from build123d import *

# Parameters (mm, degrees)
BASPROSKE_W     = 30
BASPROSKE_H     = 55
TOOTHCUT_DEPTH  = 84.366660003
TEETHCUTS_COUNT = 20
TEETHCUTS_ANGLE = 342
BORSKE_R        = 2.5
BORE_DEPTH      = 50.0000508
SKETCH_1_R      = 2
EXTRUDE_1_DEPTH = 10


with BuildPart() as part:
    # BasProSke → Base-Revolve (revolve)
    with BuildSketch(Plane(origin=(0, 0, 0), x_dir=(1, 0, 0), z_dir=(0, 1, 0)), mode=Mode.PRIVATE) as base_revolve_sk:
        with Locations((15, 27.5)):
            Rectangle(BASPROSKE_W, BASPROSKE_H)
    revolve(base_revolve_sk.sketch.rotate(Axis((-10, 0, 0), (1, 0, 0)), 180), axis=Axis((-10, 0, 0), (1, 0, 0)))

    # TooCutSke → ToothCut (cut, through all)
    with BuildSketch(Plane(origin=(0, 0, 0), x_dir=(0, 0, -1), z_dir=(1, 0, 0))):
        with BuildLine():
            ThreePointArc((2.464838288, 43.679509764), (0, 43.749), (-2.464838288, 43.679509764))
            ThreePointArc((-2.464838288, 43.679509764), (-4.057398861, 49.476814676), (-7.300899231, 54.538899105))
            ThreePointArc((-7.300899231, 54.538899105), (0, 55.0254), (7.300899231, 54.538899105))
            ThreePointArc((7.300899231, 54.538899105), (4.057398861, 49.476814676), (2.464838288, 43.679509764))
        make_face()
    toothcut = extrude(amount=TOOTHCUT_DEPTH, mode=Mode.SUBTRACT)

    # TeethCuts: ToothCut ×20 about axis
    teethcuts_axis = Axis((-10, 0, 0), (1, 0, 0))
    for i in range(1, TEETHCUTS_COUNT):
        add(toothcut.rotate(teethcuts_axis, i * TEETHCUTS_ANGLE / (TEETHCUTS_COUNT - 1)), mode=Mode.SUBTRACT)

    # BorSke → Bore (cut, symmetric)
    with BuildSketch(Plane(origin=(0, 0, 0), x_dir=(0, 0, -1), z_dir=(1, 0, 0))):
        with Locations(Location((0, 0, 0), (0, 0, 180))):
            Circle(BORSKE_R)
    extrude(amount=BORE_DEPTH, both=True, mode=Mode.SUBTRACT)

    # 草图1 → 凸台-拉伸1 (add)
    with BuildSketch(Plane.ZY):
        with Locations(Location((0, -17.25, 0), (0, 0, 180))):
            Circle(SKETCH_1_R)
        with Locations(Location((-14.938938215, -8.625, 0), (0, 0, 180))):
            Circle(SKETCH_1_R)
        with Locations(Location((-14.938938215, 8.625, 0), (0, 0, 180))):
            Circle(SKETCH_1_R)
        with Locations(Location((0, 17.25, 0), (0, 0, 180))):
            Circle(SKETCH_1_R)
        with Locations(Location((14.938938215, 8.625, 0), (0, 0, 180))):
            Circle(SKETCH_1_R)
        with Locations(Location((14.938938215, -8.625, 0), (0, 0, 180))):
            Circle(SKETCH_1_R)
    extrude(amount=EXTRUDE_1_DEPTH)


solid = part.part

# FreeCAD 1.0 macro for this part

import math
import FreeCAD as App
import Part
import Sketcher
from FreeCAD import Vector
Q = App.Units.Quantity


def add_polygon(sketch, points):
    """Adds a closed chain of lines whose ends are joined by coincident constraints."""
    first, n = sketch.GeometryCount, len(points)
    for a, b in zip(points, points[1:] + points[:1]):
        sketch.addGeometry(Part.LineSegment(App.Vector(*a, 0), App.Vector(*b, 0)), False)
    for i in range(n):
        sketch.addConstraint(Sketcher.Constraint("Coincident", first + i, 2, first + (i + 1) % n, 1))

doc = App.newDocument("Part")
body = doc.addObject("PartDesign::Body", "Body")

sketch1 = doc.addObject("Sketcher::SketchObject", "Sketch")
body.addObject(sketch1)
sketch1.AttachmentSupport = (doc.XZ_Plane, [""])
sketch1.MapMode = "FlatFace"
add_polygon(sketch1, [(0, -55), (0, 0), (30, 0), (30, -55)])
sketch1.addConstraint([
    Sketcher.Constraint("Vertical", 0),
    Sketcher.Constraint("Horizontal", 1),
    Sketcher.Constraint("Vertical", 2),
    Sketcher.Constraint("Horizontal", 3),
    Sketcher.Constraint("Coincident", 0, 2, -1, 1),
    Sketcher.Constraint("DistanceX", 1, 1, 1, 2, Q("30 mm")),
    Sketcher.Constraint("DistanceY", 0, 1, 0, 2, Q("55 mm")),
])
revolution = doc.addObject("PartDesign::Revolution", "Revolution")
body.addObject(revolution)
revolution.Profile = sketch1
revolution.ReferenceAxis = (sketch1, ["H_Axis"])
revolution.Angle = 360

sketch2 = doc.addObject("Sketcher::SketchObject", "Sketch001")
body.addObject(sketch2)
sketch2.AttachmentSupport = (doc.YZ_Plane, [""])
sketch2.MapMode = "FlatFace"
sketch2.addGeometry([
    Part.ArcOfCircle(Part.Circle(Vector(0, 0, 0), Vector(0, 0, 1), 43.749), math.radians(-3.22978), math.radians(3.22978)),
    Part.ArcOfCircle(Part.Circle(Vector(41.340468, -22.327589, 0), Vector(0, 0, 1), 20), math.radians(48.70611), math.radians(83.283769)),
    Part.ArcOfCircle(Part.Circle(Vector(0, 0, 0), Vector(0, 0, 1), 55.0254), math.radians(-7.624623), math.radians(7.624623)),
    Part.ArcOfCircle(Part.Circle(Vector(41.340468, 22.327589, 0), Vector(0, 0, 1), 20), math.radians(-83.283769), math.radians(-48.70611)),
], False)
sketch2.addConstraint([
    Sketcher.Constraint("Coincident", 0, 1, 1, 2),
    Sketcher.Constraint("Coincident", 1, 1, 2, 1),
    Sketcher.Constraint("Coincident", 2, 2, 3, 2),
    Sketcher.Constraint("Coincident", 3, 1, 0, 2),
    Sketcher.Constraint("Coincident", 0, 3, -1, 1),
    Sketcher.Constraint("Coincident", 2, 3, -1, 1),
    Sketcher.Constraint("Equal", 1, 3),
    Sketcher.Constraint("Symmetric", 1, 3, 3, 3, -1),
    Sketcher.Constraint("Radius", 1, Q("20 mm")),
    Sketcher.Constraint("Radius", 0, Q("43.749 mm")),
    Sketcher.Constraint("Radius", 2, Q("55.0254 mm")),
    Sketcher.Constraint("DistanceX", -1, 1, 1, 1, Q("54.538899 mm")),
    Sketcher.Constraint("DistanceX", -1, 1, 1, 3, Q("41.340468 mm")),
])
pocket1 = doc.addObject("PartDesign::Pocket", "Pocket")
body.addObject(pocket1)
pocket1.Profile = sketch2
pocket1.Type = "ThroughAll"
pocket1.Reversed = True
doc.recompute()

polarpattern = doc.addObject("PartDesign::PolarPattern", "PolarPattern")
body.addObject(polarpattern)
polarpattern.Originals = [pocket1]
polarpattern.Axis = (doc.X_Axis, [""])
polarpattern.Angle = 360
polarpattern.Occurrences = 20
body.Tip = polarpattern

sketch3 = doc.addObject("Sketcher::SketchObject", "Sketch002")
body.addObject(sketch3)
sketch3.AttachmentSupport = (doc.YZ_Plane, [""])
sketch3.MapMode = "FlatFace"
sketch3.addGeometry(Part.Circle(Vector(0, 0, 0), Vector(0, 0, 1), 2.5), False)
sketch3.addConstraint([
    Sketcher.Constraint("Coincident", 0, 3, -1, 1),
    Sketcher.Constraint("Diameter", 0, Q("5 mm")),
])
pocket2 = doc.addObject("PartDesign::Pocket", "Pocket001")
body.addObject(pocket2)
pocket2.Profile = sketch3
pocket2.Length = 100.000102
pocket2.Midplane = True

sketch4 = doc.addObject("Sketcher::SketchObject", "Sketch003")
body.addObject(sketch4)
sketch4.AttachmentSupport = (doc.YZ_Plane, [""])
sketch4.MapMode = "FlatFace"
sketch4.addGeometry([
    Part.Circle(Vector(-17.25, 0, 0), Vector(0, 0, 1), 2),
    Part.Circle(Vector(-8.625, -14.938938, 0), Vector(0, 0, 1), 2),
    Part.Circle(Vector(8.625, -14.938938, 0), Vector(0, 0, 1), 2),
    Part.Circle(Vector(17.25, 0, 0), Vector(0, 0, 1), 2),
    Part.Circle(Vector(8.625, 14.938938, 0), Vector(0, 0, 1), 2),
    Part.Circle(Vector(-8.625, 14.938938, 0), Vector(0, 0, 1), 2),
], False)
sketch4.addConstraint([
    Sketcher.Constraint("Equal", 0, 1),
    Sketcher.Constraint("Equal", 1, 2),
    Sketcher.Constraint("Equal", 2, 3),
    Sketcher.Constraint("Equal", 3, 4),
    Sketcher.Constraint("Equal", 4, 5),
    Sketcher.Constraint("Symmetric", 0, 3, 3, 3, -1, 1),
    Sketcher.Constraint("Symmetric", 1, 3, 4, 3, -1, 1),
    Sketcher.Constraint("Symmetric", 2, 3, 5, 3, -1, 1),
    Sketcher.Constraint("Symmetric", 1, 3, 2, 3, -2),
    Sketcher.Constraint("PointOnObject", 0, 3, -1),
    Sketcher.Constraint("Diameter", 0, Q("4 mm")),
    Sketcher.Constraint("DistanceX", 0, 3, 3, 3, Q("34.5 mm")),
    Sketcher.Constraint("DistanceX", 1, 3, 2, 3, Q("17.25 mm")),
    Sketcher.Constraint("DistanceY", 1, 3, -1, 1, Q("14.938938 mm")),
])
pad1 = doc.addObject("PartDesign::Pad", "Pad")
body.addObject(pad1)
pad1.Profile = sketch4
pad1.Length = 10
pad1.Reversed = True

doc.recompute()
